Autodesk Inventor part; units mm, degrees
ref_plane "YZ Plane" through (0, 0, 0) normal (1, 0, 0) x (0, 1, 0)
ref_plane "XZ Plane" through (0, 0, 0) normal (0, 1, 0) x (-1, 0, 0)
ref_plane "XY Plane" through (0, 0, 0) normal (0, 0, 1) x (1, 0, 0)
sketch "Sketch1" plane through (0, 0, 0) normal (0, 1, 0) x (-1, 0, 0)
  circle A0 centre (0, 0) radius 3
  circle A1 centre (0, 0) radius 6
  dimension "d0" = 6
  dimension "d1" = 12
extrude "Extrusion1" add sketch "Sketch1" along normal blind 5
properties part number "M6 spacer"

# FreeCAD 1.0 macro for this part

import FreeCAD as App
import Part
import Sketcher

doc = App.newDocument("Part")
body = doc.addObject("PartDesign::Body", "Body")

sketch1 = body.newObject("Sketcher::SketchObject", "Sketch")
sketch1.AttachmentSupport = (doc.getObject("XZ_Plane"), [""])
sketch1.MapMode = "FlatFace"
sketch1.addGeometry(Part.Circle(App.Vector(0, 0, 0), App.Vector(0, 0, 1), 6), False)
sketch1.addGeometry(Part.Circle(App.Vector(0, 0, 0), App.Vector(0, 0, 1), 3), False)
sketch1.addConstraint(Sketcher.Constraint("Coincident", 0, 3, -1, 1))
sketch1.addConstraint(Sketcher.Constraint("Coincident", 1, 3, -1, 1))
sketch1.addConstraint(Sketcher.Constraint("Diameter", 0, 12.0))
sketch1.addConstraint(Sketcher.Constraint("Diameter", 1, 6.0))
pad1 = body.newObject("PartDesign::Pad", "Pad")
pad1.Profile = sketch1
pad1.Length = 5
pad1.Reversed = True

doc.recompute()
